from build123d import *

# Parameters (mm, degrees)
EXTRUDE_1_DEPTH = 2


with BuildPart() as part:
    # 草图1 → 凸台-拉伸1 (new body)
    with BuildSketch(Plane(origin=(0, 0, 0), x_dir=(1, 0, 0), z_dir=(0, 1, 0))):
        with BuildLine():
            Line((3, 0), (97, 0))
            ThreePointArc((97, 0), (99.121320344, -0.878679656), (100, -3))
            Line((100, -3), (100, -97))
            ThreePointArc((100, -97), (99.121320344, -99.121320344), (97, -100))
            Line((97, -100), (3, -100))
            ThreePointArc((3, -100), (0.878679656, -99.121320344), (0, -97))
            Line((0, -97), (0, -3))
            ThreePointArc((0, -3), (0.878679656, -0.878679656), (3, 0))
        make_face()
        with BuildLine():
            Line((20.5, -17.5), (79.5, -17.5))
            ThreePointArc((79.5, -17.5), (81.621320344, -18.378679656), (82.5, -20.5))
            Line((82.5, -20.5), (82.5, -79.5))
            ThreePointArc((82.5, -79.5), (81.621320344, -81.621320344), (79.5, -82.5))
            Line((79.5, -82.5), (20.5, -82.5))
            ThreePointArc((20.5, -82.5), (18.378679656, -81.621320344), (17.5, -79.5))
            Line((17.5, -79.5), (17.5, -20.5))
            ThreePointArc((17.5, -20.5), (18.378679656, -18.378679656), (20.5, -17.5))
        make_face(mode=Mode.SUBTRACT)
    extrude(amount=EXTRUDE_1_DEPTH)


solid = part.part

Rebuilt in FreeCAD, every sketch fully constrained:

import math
import FreeCAD as App
import Part
import Sketcher

V = App.Vector
Q = App.Units.Quantity

doc = App.newDocument("Part")
body = doc.addObject("PartDesign::Body", "Body")

sketch1 = doc.addObject("Sketcher::SketchObject", "Sketch")
body.addObject(sketch1)
sketch1.AttachmentSupport = (doc.XZ_Plane, [""])
sketch1.MapMode = "FlatFace"
sketch1.addGeometry([
    Part.LineSegment(V(97, 0, 0), V(3, 0, 0)),
    Part.ArcOfCircle(Part.Circle(V(3, 3, 0), V(0, 0, 1), 3), math.radians(180), math.radians(270)),
    Part.LineSegment(V(0, 3, 0), V(0, 97, 0)),
    Part.ArcOfCircle(Part.Circle(V(3, 97, 0), V(0, 0, 1), 3), math.radians(90), math.radians(180)),
    Part.LineSegment(V(3, 100, 0), V(97, 100, 0)),
    Part.ArcOfCircle(Part.Circle(V(97, 97, 0), V(0, 0, 1), 3), math.radians(0), math.radians(90)),
    Part.LineSegment(V(100, 97, 0), V(100, 3, 0)),
    Part.ArcOfCircle(Part.Circle(V(97, 3, 0), V(0, 0, 1), 3), math.radians(-90), math.radians(0)),
    Part.LineSegment(V(20.5, 17.5, 0), V(79.5, 17.5, 0)),
    Part.ArcOfCircle(Part.Circle(V(79.5, 20.5, 0), V(0, 0, 1), 3), math.radians(-90), math.radians(0)),
    Part.LineSegment(V(82.5, 20.5, 0), V(82.5, 79.5, 0)),
    Part.ArcOfCircle(Part.Circle(V(79.5, 79.5, 0), V(0, 0, 1), 3), math.radians(0), math.radians(90)),
    Part.LineSegment(V(79.5, 82.5, 0), V(20.5, 82.5, 0)),
    Part.ArcOfCircle(Part.Circle(V(20.5, 79.5, 0), V(0, 0, 1), 3), math.radians(90), math.radians(180)),
    Part.LineSegment(V(17.5, 79.5, 0), V(17.5, 20.5, 0)),
    Part.ArcOfCircle(Part.Circle(V(20.5, 20.5, 0), V(0, 0, 1), 3), math.radians(180), math.radians(270)),
], False)
sketch1.addConstraint([
    Sketcher.Constraint("Tangent", 0, 2, 1, 2),
    Sketcher.Constraint("Tangent", 1, 1, 2, 1),
    Sketcher.Constraint("Tangent", 2, 2, 3, 2),
    Sketcher.Constraint("Tangent", 3, 1, 4, 1),
    Sketcher.Constraint("Tangent", 4, 2, 5, 2),
    Sketcher.Constraint("Tangent", 5, 1, 6, 1),
    Sketcher.Constraint("Tangent", 6, 2, 7, 2),
    Sketcher.Constraint("Tangent", 7, 1, 0, 1),
    Sketcher.Constraint("Tangent", 8, 2, 9, 1),
    Sketcher.Constraint("Tangent", 9, 2, 10, 1),
    Sketcher.Constraint("Tangent", 10, 2, 11, 1),
    Sketcher.Constraint("Tangent", 11, 2, 12, 1),
    Sketcher.Constraint("Tangent", 12, 2, 13, 1),
    Sketcher.Constraint("Tangent", 13, 2, 14, 1),
    Sketcher.Constraint("Tangent", 14, 2, 15, 1),
    Sketcher.Constraint("Tangent", 15, 2, 8, 1),
    Sketcher.Constraint("Horizontal", 0),
    Sketcher.Constraint("Vertical", 2),
    Sketcher.Constraint("Horizontal", 4),
    Sketcher.Constraint("Vertical", 6),
    Sketcher.Constraint("Horizontal", 8),
    Sketcher.Constraint("Vertical", 10),
    Sketcher.Constraint("Horizontal", 12),
    Sketcher.Constraint("Vertical", 14),
    Sketcher.Constraint("Equal", 1, 3),
    Sketcher.Constraint("Equal", 3, 5),
    Sketcher.Constraint("Equal", 5, 7),
    Sketcher.Constraint("Equal", 7, 9),
    Sketcher.Constraint("Equal", 9, 11),
    Sketcher.Constraint("Equal", 11, 13),
    Sketcher.Constraint("Equal", 13, 15),
    Sketcher.Constraint("PointOnObject", 0, 2, -1),
    Sketcher.Constraint("PointOnObject", 1, 1, -2),
    Sketcher.Constraint("Equal", 4, 2),
    Sketcher.Constraint("Equal", 12, 10),
    Sketcher.Constraint("Radius", 1, Q("3 mm")),
    Sketcher.Constraint("DistanceX", 0, 2, 0, 1, Q("94 mm")),
    Sketcher.Constraint("DistanceX", 8, 1, 8, 2, Q("59 mm")),
    Sketcher.Constraint("DistanceX", -1, 1, 9, 3, Q("79.5 mm")),
    Sketcher.Constraint("DistanceY", -1, 1, 9, 3, Q("20.5 mm")),
])
pad1 = doc.addObject("PartDesign::Pad", "Pad")
body.addObject(pad1)
pad1.Profile = sketch1
pad1.Length = 2
pad1.Reversed = True

doc.recompute()
